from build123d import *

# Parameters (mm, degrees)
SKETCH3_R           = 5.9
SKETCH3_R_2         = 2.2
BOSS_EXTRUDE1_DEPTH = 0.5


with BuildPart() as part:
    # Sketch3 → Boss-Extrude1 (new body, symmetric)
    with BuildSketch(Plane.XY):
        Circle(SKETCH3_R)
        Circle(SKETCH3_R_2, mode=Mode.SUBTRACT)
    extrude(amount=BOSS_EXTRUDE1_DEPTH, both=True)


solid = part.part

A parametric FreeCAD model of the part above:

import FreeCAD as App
import Part
import Sketcher
from FreeCAD import Vector
Q = App.Units.Quantity

doc = App.newDocument("Part")
body = doc.addObject("PartDesign::Body", "Body")

# Sketch on XY plane
sketch1 = doc.addObject("Sketcher::SketchObject", "Sketch")
body.addObject(sketch1)
sketch1.AttachmentSupport = (doc.XY_Plane, [""])
sketch1.MapMode = "FlatFace"
sketch1.addGeometry([
    Part.Circle(Vector(0, 0, 0), Vector(0, 0, 1), 5.9),
    Part.Circle(Vector(0, 0, 0), Vector(0, 0, 1), 2.2),
], False)
sketch1.addConstraint([
    Sketcher.Constraint("Coincident", 0, 3, -1, 1),
    Sketcher.Constraint("Coincident", 1, 3, -1, 1),
    Sketcher.Constraint("Diameter", 0, Q("11.8 mm")),
    Sketcher.Constraint("Diameter", 1, Q("4.4 mm")),
])
pad1 = doc.addObject("PartDesign::Pad", "Pad")
body.addObject(pad1)
pad1.Profile = sketch1
pad1.Length = 1
pad1.Midplane = True

doc.recompute()
